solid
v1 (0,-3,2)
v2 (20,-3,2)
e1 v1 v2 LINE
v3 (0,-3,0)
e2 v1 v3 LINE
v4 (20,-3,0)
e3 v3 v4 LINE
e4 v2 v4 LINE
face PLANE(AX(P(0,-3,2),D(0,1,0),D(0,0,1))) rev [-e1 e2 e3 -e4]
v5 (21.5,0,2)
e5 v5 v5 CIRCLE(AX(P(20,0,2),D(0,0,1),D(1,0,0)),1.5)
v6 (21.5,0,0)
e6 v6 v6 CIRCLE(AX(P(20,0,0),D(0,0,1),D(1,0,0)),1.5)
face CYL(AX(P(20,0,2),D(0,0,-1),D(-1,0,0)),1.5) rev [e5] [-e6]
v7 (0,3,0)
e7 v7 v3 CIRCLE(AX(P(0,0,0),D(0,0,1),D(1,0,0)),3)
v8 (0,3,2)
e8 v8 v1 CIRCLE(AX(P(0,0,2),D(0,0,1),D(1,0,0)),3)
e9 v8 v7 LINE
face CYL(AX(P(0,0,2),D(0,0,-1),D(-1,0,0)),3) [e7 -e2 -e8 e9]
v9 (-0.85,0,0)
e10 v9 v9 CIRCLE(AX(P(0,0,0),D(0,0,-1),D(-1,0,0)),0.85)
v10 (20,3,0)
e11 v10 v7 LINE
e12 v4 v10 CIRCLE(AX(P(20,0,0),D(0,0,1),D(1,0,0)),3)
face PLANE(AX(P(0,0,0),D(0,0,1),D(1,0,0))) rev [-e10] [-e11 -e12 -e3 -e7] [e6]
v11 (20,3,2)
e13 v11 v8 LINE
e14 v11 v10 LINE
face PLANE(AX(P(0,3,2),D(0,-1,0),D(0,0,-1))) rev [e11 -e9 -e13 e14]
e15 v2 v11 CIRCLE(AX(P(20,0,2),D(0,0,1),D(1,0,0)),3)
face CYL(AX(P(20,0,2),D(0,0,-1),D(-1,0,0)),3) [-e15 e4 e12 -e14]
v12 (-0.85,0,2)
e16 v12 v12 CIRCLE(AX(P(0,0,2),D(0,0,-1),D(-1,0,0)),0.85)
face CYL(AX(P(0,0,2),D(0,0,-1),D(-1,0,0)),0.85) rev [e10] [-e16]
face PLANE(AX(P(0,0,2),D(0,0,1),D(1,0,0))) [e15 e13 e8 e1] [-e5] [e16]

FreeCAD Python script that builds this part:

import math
import FreeCAD as App
import Part
import Sketcher

doc = App.newDocument("Part")
body = doc.addObject("PartDesign::Body", "Body")

# Sketch on XY plane
sketch1 = body.newObject("Sketcher::SketchObject", "Sketch")
sketch1.AttachmentSupport = (doc.getObject("XY_Plane"), [""])
sketch1.MapMode = "FlatFace"
sketch1.addGeometry(Part.LineSegment(App.Vector(20, 3, 0), App.Vector(0, 3, 0)), False)
sketch1.addGeometry(Part.ArcOfCircle(Part.Circle(App.Vector(0, 0, 0), App.Vector(0, 0, 1), 3), math.radians(90), math.radians(270)), False)
sketch1.addGeometry(Part.LineSegment(App.Vector(0, -3, 0), App.Vector(20, -3, 0)), False)
sketch1.addGeometry(Part.ArcOfCircle(Part.Circle(App.Vector(20, 0, 0), App.Vector(0, 0, 1), 3), math.radians(-90), math.radians(90)), False)
sketch1.addGeometry(Part.Circle(App.Vector(20, 0, 0), App.Vector(0, 0, 1), 1.5), False)
sketch1.addGeometry(Part.Circle(App.Vector(0, 0, 0), App.Vector(0, 0, 1), 1.5), False)
sketch1.addConstraint(Sketcher.Constraint("Tangent", 0, 2, 1, 1))
sketch1.addConstraint(Sketcher.Constraint("Tangent", 1, 2, 2, 1))
sketch1.addConstraint(Sketcher.Constraint("Tangent", 2, 2, 3, 1))
sketch1.addConstraint(Sketcher.Constraint("Tangent", 3, 2, 0, 1))
sketch1.addConstraint(Sketcher.Constraint("Horizontal", 0))
sketch1.addConstraint(Sketcher.Constraint("Horizontal", 2))
sketch1.addConstraint(Sketcher.Constraint("Coincident", 1, 3, -1, 1))
sketch1.addConstraint(Sketcher.Constraint("Coincident", 5, 3, -1, 1))
sketch1.addConstraint(Sketcher.Constraint("Coincident", 4, 3, 3, 3))
sketch1.addConstraint(Sketcher.Constraint("Equal", 4, 5))
sketch1.addConstraint(Sketcher.Constraint("Diameter", 4, 3.0))
sketch1.addConstraint(Sketcher.Constraint("Radius", 1, 3.0))
sketch1.addConstraint(Sketcher.Constraint("DistanceX", 0, 2, 0, 1, 20.0))
pad1 = body.newObject("PartDesign::Pad", "Pad")
pad1.Profile = sketch1
pad1.Length = 2

# Sketch on XY plane
sketch2 = body.newObject("Sketcher::SketchObject", "Sketch001")
sketch2.AttachmentSupport = (doc.getObject("XY_Plane"), [""])
sketch2.MapMode = "FlatFace"
sketch2.addGeometry(Part.Circle(App.Vector(0, 0, 0), App.Vector(0, 0, 1), 1.5), False)
sketch2.addGeometry(Part.Circle(App.Vector(0, 0, 0), App.Vector(0, 0, 1), 0.8), False)
sketch2.addConstraint(Sketcher.Constraint("Coincident", 0, 3, -1, 1))
sketch2.addConstraint(Sketcher.Constraint("Coincident", 1, 3, -1, 1))
sketch2.addConstraint(Sketcher.Constraint("Diameter", 0, 3.0))
sketch2.addConstraint(Sketcher.Constraint("Diameter", 1, 1.7))
pad2 = body.newObject("PartDesign::Pad", "Pad001")
pad2.Profile = sketch2
pad2.Length = 2

doc.recompute()
